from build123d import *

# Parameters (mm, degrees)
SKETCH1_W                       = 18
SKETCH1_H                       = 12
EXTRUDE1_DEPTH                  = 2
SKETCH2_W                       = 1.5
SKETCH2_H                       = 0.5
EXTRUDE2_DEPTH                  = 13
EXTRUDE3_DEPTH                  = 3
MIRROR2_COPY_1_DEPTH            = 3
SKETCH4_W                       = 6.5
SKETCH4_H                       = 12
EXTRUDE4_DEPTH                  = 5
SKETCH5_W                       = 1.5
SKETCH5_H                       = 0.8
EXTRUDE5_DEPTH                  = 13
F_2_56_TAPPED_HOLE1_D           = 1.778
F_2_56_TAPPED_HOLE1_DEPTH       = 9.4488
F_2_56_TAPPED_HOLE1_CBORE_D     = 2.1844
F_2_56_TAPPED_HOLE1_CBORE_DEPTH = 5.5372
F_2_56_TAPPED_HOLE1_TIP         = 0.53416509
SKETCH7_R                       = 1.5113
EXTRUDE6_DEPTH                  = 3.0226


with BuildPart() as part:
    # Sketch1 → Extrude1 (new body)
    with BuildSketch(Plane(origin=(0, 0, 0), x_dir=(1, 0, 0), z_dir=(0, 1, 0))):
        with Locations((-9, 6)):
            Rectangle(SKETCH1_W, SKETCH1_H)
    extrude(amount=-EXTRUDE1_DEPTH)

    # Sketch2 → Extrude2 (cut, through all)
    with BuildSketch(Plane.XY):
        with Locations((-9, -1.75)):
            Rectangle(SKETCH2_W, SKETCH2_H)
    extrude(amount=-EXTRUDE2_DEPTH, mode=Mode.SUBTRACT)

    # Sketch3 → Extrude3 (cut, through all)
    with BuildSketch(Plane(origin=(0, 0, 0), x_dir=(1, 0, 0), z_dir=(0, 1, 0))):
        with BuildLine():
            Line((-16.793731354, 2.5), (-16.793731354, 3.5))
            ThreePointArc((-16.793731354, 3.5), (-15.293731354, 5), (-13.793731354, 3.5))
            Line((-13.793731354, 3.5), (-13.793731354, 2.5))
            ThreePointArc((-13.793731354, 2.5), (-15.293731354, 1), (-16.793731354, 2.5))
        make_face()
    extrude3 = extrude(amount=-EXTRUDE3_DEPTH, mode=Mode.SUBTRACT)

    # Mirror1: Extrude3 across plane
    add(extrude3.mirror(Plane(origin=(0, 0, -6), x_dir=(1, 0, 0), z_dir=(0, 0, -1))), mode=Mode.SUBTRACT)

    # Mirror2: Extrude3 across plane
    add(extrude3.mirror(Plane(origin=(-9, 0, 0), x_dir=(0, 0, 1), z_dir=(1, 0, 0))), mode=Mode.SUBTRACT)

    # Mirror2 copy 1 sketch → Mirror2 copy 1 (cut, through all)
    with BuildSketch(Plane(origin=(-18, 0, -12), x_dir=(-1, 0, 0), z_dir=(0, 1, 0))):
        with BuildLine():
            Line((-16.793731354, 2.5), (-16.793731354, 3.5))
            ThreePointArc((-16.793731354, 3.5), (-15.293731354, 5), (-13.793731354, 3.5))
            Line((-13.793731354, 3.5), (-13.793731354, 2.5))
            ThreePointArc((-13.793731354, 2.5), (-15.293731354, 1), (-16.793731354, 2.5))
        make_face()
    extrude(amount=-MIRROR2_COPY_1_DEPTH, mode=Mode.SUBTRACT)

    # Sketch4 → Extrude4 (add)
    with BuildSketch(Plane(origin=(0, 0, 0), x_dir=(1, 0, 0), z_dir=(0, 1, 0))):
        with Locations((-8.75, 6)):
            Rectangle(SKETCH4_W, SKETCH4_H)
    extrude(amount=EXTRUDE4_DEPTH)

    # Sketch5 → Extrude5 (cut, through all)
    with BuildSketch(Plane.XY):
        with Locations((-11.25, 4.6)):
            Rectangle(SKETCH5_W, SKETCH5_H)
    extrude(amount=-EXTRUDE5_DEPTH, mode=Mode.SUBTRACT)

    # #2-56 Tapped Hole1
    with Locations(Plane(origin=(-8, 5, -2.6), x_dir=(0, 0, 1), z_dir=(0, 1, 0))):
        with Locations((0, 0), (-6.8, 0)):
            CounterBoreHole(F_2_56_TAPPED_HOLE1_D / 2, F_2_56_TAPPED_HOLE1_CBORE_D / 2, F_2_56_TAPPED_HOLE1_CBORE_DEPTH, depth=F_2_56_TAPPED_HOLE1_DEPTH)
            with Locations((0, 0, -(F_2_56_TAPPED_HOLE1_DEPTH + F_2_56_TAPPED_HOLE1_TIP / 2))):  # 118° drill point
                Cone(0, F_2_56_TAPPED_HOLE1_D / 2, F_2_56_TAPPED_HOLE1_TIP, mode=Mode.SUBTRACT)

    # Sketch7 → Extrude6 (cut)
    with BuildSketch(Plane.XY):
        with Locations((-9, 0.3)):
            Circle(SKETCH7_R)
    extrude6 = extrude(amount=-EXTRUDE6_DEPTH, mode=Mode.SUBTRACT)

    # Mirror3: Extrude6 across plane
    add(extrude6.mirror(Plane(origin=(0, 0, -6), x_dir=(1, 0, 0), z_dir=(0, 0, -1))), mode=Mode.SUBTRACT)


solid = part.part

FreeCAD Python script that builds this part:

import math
import FreeCAD as App
import Part
import Sketcher

V = App.Vector
Q = App.Units.Quantity

doc = App.newDocument("Part")
params = doc.addObject("Spreadsheet::Sheet", "Params")
for row, (alias, value) in enumerate([
    ("sketch1_width", "18 mm"),
    ("sketch1_height", "12 mm"),
    ("pad1_length", "2 mm"),
    ("sketch2_width", "1.5 mm"),
    ("sketch2_height", "0.5 mm"),
    ("sketch3_radius", "1.5 mm"),
    ("sketch3_height", "1 mm"),
    ("sketch4_radius", "1.5 mm"),
    ("sketch4_height", "1 mm"),
    ("sketch5_height", "12 mm"),
    ("sketch5_width", "6.5 mm"),
    ("pad2_length", "5 mm"),
    ("sketch6_width", "1.5 mm"),
    ("sketch6_height", "0.8 mm"),
    ("hole_diameter", "1.778 mm"),
    ("hole_depth", "9.4488 mm"),
    ("hole_cbore_diameter", "2.1844 mm"),
    ("hole_cbore_depth", "5.5372 mm"),
    ("pocket5_length", "3.0226 mm"),
], start=1):
    params.set(f"A{row}", alias)
    params.set(f"B{row}", "=" + value)
    params.setAlias(f"B{row}", alias)

body = doc.addObject("PartDesign::Body", "Body")

# Sketch on XZ plane
sketch1 = doc.addObject("Sketcher::SketchObject", "Sketch")
body.addObject(sketch1)
sketch1.AttachmentSupport = (doc.XZ_Plane, [""])
sketch1.MapMode = "FlatFace"
sketch1.addGeometry([
    Part.LineSegment(V(-18, -12, 0), V(-18, 0, 0)),
    Part.LineSegment(V(-18, 0, 0), V(0, 0, 0)),
    Part.LineSegment(V(0, 0, 0), V(0, -12, 0)),
    Part.LineSegment(V(0, -12, 0), V(-18, -12, 0)),
], False)
sketch1.addConstraint([
    Sketcher.Constraint("Coincident", 0, 2, 1, 1),
    Sketcher.Constraint("Coincident", 1, 2, 2, 1),
    Sketcher.Constraint("Coincident", 2, 2, 3, 1),
    Sketcher.Constraint("Coincident", 3, 2, 0, 1),
    Sketcher.Constraint("Vertical", 0),
    Sketcher.Constraint("Horizontal", 1),
    Sketcher.Constraint("Vertical", 2),
    Sketcher.Constraint("Horizontal", 3),
    Sketcher.Constraint("Coincident", 1, 2, -1, 1),
    Sketcher.Constraint("DistanceX", 1, 1, 1, 2, Q("18 mm")),
    Sketcher.Constraint("DistanceY", 0, 1, 0, 2, Q("12 mm")),
])
sketch1.setExpression("Constraints[9]", "Params.sketch1_width")
sketch1.setExpression("Constraints[10]", "Params.sketch1_height")
pad1 = doc.addObject("PartDesign::Pad", "Pad")
body.addObject(pad1)
pad1.Profile = sketch1
pad1.setExpression("Length", "Params.pad1_length")

# Sketch on XY plane
sketch2 = doc.addObject("Sketcher::SketchObject", "Sketch001")
body.addObject(sketch2)
sketch2.AttachmentSupport = (doc.XY_Plane, [""])
sketch2.MapMode = "FlatFace"
sketch2.addGeometry([
    Part.LineSegment(V(-9.8, -1.5, 0), V(-9.8, -2, 0)),
    Part.LineSegment(V(-9.8, -2, 0), V(-8.2, -2, 0)),
    Part.LineSegment(V(-8.2, -2, 0), V(-8.2, -1.5, 0)),
    Part.LineSegment(V(-8.2, -1.5, 0), V(-9.8, -1.5, 0)),
], False)
sketch2.addConstraint([
    Sketcher.Constraint("Coincident", 0, 2, 1, 1),
    Sketcher.Constraint("Coincident", 1, 2, 2, 1),
    Sketcher.Constraint("Coincident", 2, 2, 3, 1),
    Sketcher.Constraint("Coincident", 3, 2, 0, 1),
    Sketcher.Constraint("Vertical", 0),
    Sketcher.Constraint("Horizontal", 1),
    Sketcher.Constraint("Vertical", 2),
    Sketcher.Constraint("Horizontal", 3),
    Sketcher.Constraint("DistanceX", 1, 1, 1, 2, Q("1.5 mm")),
    Sketcher.Constraint("DistanceY", 0, 2, 0, 1, Q("0.5 mm")),
    Sketcher.Constraint("DistanceY", 0, 2, -1, 1, Q("2 mm")),
    Sketcher.Constraint("DistanceX", 0, 2, -1, 1, Q("9.75 mm")),
])
sketch2.setExpression("Constraints[8]", "Params.sketch2_width")
sketch2.setExpression("Constraints[9]", "Params.sketch2_height")
pocket1 = doc.addObject("PartDesign::Pocket", "Pocket")
body.addObject(pocket1)
pocket1.Profile = sketch2
pocket1.Type = "ThroughAll"

# Sketch on XZ plane
sketch3 = doc.addObject("Sketcher::SketchObject", "Sketch002")
body.addObject(sketch3)
sketch3.AttachmentSupport = (doc.XZ_Plane, [""])
sketch3.MapMode = "FlatFace"
sketch3.addGeometry([
    Part.LineSegment(V(-16.8, -3.5, 0), V(-16.8, -2.5, 0)),
    Part.ArcOfCircle(Part.Circle(V(-15.3, -2.5, 0), V(0, 0, 1), 1.5), math.radians(0), math.radians(180)),
    Part.LineSegment(V(-13.8, -2.5, 0), V(-13.8, -3.5, 0)),
    Part.ArcOfCircle(Part.Circle(V(-15.3, -3.5, 0), V(0, 0, 1), 1.5), math.radians(180), math.radians(360)),
], False)
sketch3.addConstraint([
    Sketcher.Constraint("Tangent", 0, 2, 1, 2),
    Sketcher.Constraint("Tangent", 1, 1, 2, 1),
    Sketcher.Constraint("Tangent", 2, 2, 3, 2),
    Sketcher.Constraint("Tangent", 3, 1, 0, 1),
    Sketcher.Constraint("Vertical", 0),
    Sketcher.Constraint("Vertical", 2),
    Sketcher.Constraint("Radius", 1, Q("1.5 mm")),
    Sketcher.Constraint("DistanceY", 0, 1, 0, 2, Q("1 mm")),
    Sketcher.Constraint("DistanceY", 1, 3, -1, 1, Q("2.5 mm")),
    Sketcher.Constraint("DistanceX", 1, 3, -1, 1, Q("15.293731 mm")),
])
sketch3.setExpression("Constraints[6]", "Params.sketch3_radius")
sketch3.setExpression("Constraints[7]", "Params.sketch3_height")
pocket2 = doc.addObject("PartDesign::Pocket", "Pocket001")
body.addObject(pocket2)
pocket2.Profile = sketch3
pocket2.Type = "ThroughAll"
pocket2.Reversed = True
doc.recompute()

datumplane = doc.addObject("PartDesign::Plane", "DatumPlane")
body.addObject(datumplane)
datumplane.AttachmentSupport = (doc.XY_Plane, [""])
datumplane.MapMode = "FlatFace"
datumplane.AttachmentOffset = App.Placement(V(0, 0, -6), App.Rotation())
mirrored = doc.addObject("PartDesign::Mirrored", "Mirrored")
body.addObject(mirrored)
mirrored.Originals = [pocket2]
mirrored.MirrorPlane = (datumplane, [""])
body.Tip = mirrored
doc.recompute()

datumplane2 = doc.addObject("PartDesign::Plane", "DatumPlane001")
body.addObject(datumplane2)
datumplane2.AttachmentSupport = (doc.YZ_Plane, [""])
datumplane2.MapMode = "FlatFace"
datumplane2.AttachmentOffset = App.Placement(V(0, 0, -9), App.Rotation())
mirrored2 = doc.addObject("PartDesign::Mirrored", "Mirrored001")
body.addObject(mirrored2)
mirrored2.Originals = [pocket2]
mirrored2.MirrorPlane = (datumplane2, [""])
body.Tip = mirrored2

# Sketch on XZ plane
sketch4 = doc.addObject("Sketcher::SketchObject", "Sketch003")
body.addObject(sketch4)
sketch4.AttachmentSupport = (doc.XZ_Plane, [""])
sketch4.MapMode = "FlatFace"
sketch4.addGeometry([
    Part.LineSegment(V(-1.2, -8.5, 0), V(-1.2, -9.5, 0)),
    Part.ArcOfCircle(Part.Circle(V(-2.7, -9.5, 0), V(0, 0, 1), 1.5), math.radians(180), math.radians(360)),
    Part.LineSegment(V(-4.2, -9.5, 0), V(-4.2, -8.5, 0)),
    Part.ArcOfCircle(Part.Circle(V(-2.7, -8.5, 0), V(0, 0, 1), 1.5), math.radians(0), math.radians(180)),
], False)
sketch4.addConstraint([
    Sketcher.Constraint("Tangent", 0, 2, 1, 2),
    Sketcher.Constraint("Tangent", 1, 1, 2, 1),
    Sketcher.Constraint("Tangent", 2, 2, 3, 2),
    Sketcher.Constraint("Tangent", 3, 1, 0, 1),
    Sketcher.Constraint("Vertical", 0),
    Sketcher.Constraint("Vertical", 2),
    Sketcher.Constraint("Radius", 1, Q("1.5 mm")),
    Sketcher.Constraint("DistanceY", 0, 2, 0, 1, Q("1 mm")),
    Sketcher.Constraint("DistanceY", 1, 3, -1, 1, Q("9.5 mm")),
    Sketcher.Constraint("DistanceX", 1, 3, -1, 1, Q("2.706269 mm")),
])
sketch4.setExpression("Constraints[6]", "Params.sketch4_radius")
sketch4.setExpression("Constraints[7]", "Params.sketch4_height")
pocket3 = doc.addObject("PartDesign::Pocket", "Pocket002")
body.addObject(pocket3)
pocket3.Profile = sketch4
pocket3.Type = "ThroughAll"
pocket3.Reversed = True

# Sketch on XZ plane
sketch5 = doc.addObject("Sketcher::SketchObject", "Sketch004")
body.addObject(sketch5)
sketch5.AttachmentSupport = (doc.XZ_Plane, [""])
sketch5.MapMode = "FlatFace"
sketch5.addGeometry([
    Part.LineSegment(V(-12, -12, 0), V(-12, 0, 0)),
    Part.LineSegment(V(-12, 0, 0), V(-6, 0, 0)),
    Part.LineSegment(V(-6, 0, 0), V(-6, -12, 0)),
    Part.LineSegment(V(-6, -12, 0), V(-12, -12, 0)),
], False)
sketch5.addConstraint([
    Sketcher.Constraint("Coincident", 0, 2, 1, 1),
    Sketcher.Constraint("Coincident", 1, 2, 2, 1),
    Sketcher.Constraint("Coincident", 2, 2, 3, 1),
    Sketcher.Constraint("Coincident", 3, 2, 0, 1),
    Sketcher.Constraint("Vertical", 0),
    Sketcher.Constraint("Horizontal", 1),
    Sketcher.Constraint("Vertical", 2),
    Sketcher.Constraint("Horizontal", 3),
    Sketcher.Constraint("PointOnObject", 0, 2, -1),
    Sketcher.Constraint("DistanceY", 0, 1, 0, 2, Q("12 mm")),
    Sketcher.Constraint("DistanceX", 1, 1, 1, 2, Q("6.5 mm")),
    Sketcher.Constraint("DistanceX", 0, 2, -1, 1, Q("12 mm")),
])
sketch5.setExpression("Constraints[9]", "Params.sketch5_height")
sketch5.setExpression("Constraints[10]", "Params.sketch5_width")
pad2 = doc.addObject("PartDesign::Pad", "Pad001")
body.addObject(pad2)
pad2.Profile = sketch5
pad2.setExpression("Length", "Params.pad2_length")
pad2.Reversed = True

# Sketch on XY plane
sketch6 = doc.addObject("Sketcher::SketchObject", "Sketch005")
body.addObject(sketch6)
sketch6.AttachmentSupport = (doc.XY_Plane, [""])
sketch6.MapMode = "FlatFace"
sketch6.addGeometry([
    Part.LineSegment(V(-12, 5, 0), V(-12, 4.2, 0)),
    Part.LineSegment(V(-12, 4.2, 0), V(-10.5, 4.2, 0)),
    Part.LineSegment(V(-10.5, 4.2, 0), V(-10.5, 5, 0)),
    Part.LineSegment(V(-10.5, 5, 0), V(-12, 5, 0)),
], False)
sketch6.addConstraint([
    Sketcher.Constraint("Coincident", 0, 2, 1, 1),
    Sketcher.Constraint("Coincident", 1, 2, 2, 1),
    Sketcher.Constraint("Coincident", 2, 2, 3, 1),
    Sketcher.Constraint("Coincident", 3, 2, 0, 1),
    Sketcher.Constraint("Vertical", 0),
    Sketcher.Constraint("Horizontal", 1),
    Sketcher.Constraint("Vertical", 2),
    Sketcher.Constraint("Horizontal", 3),
    Sketcher.Constraint("DistanceX", 1, 1, 1, 2, Q("1.5 mm")),
    Sketcher.Constraint("DistanceY", 0, 2, 0, 1, Q("0.8 mm")),
    Sketcher.Constraint("DistanceX", 0, 2, -1, 1, Q("12 mm")),
    Sketcher.Constraint("DistanceY", -1, 1, 2, 2, Q("5 mm")),
])
sketch6.setExpression("Constraints[8]", "Params.sketch6_width")
sketch6.setExpression("Constraints[9]", "Params.sketch6_height")
pocket4 = doc.addObject("PartDesign::Pocket", "Pocket003")
body.addObject(pocket4)
pocket4.Profile = sketch6
pocket4.Type = "ThroughAll"

# Sketch on XZ plane
sketch7 = doc.addObject("Sketcher::SketchObject", "Sketch006")
body.addObject(sketch7)
sketch7.AttachmentSupport = (doc.XZ_Plane, [""])
sketch7.MapMode = "FlatFace"
sketch7.AttachmentOffset = App.Placement(V(0, 0, -5), App.Rotation())
sketch7.addGeometry([
    Part.Circle(V(-8, -2.6, 0), V(0, 0, 1), 0.9),
    Part.Circle(V(-8, -9.4, 0), V(0, 0, 1), 0.9),
], False)
sketch7.addConstraint([
    Sketcher.Constraint("Equal", 0, 1),
    Sketcher.Constraint("Vertical", 0, 3, 1, 3),
    Sketcher.Constraint("Diameter", 0, Q("1.778 mm")),
    Sketcher.Constraint("DistanceX", 0, 3, -1, 1, Q("8 mm")),
    Sketcher.Constraint("DistanceY", 0, 3, -1, 1, Q("2.6 mm")),
    Sketcher.Constraint("DistanceY", 1, 3, -1, 1, Q("9.4 mm")),
])
doc.recompute()
hole = doc.addObject("PartDesign::Hole", "Hole")
body.addObject(hole)
hole.Profile = sketch7
hole.ThreadType = "None"
hole.setExpression("Diameter", "Params.hole_diameter")
hole.DepthType = "Dimension"
hole.setExpression("Depth", "Params.hole_depth")
hole.DrillPoint = "Angled"
hole.DrillPointAngle = 118
hole.HoleCutType = "Counterbore"
hole.setExpression("HoleCutDiameter", "Params.hole_cbore_diameter")
hole.setExpression("HoleCutDepth", "Params.hole_cbore_depth")
hole.Reversed = True

# Sketch on XY plane
sketch8 = doc.addObject("Sketcher::SketchObject", "Sketch007")
body.addObject(sketch8)
sketch8.AttachmentSupport = (doc.XY_Plane, [""])
sketch8.MapMode = "FlatFace"
sketch8.addGeometry(Part.Circle(V(-9, 0.3, 0), V(0, 0, 1), 1.5), False)
sketch8.addConstraint([
    Sketcher.Constraint("DistanceX", 0, 3, -1, 1, Q("9 mm")),
    Sketcher.Constraint("Diameter", 0, Q("3.0226 mm")),
    Sketcher.Constraint("DistanceY", -1, 1, 0, 3, Q("0.3 mm")),
])
pocket5 = doc.addObject("PartDesign::Pocket", "Pocket004")
body.addObject(pocket5)
pocket5.Profile = sketch8
pocket5.setExpression("Length", "Params.pocket5_length")
doc.recompute()

datumplane3 = doc.addObject("PartDesign::Plane", "DatumPlane002")
body.addObject(datumplane3)
datumplane3.AttachmentSupport = (doc.XY_Plane, [""])
datumplane3.MapMode = "FlatFace"
datumplane3.AttachmentOffset = App.Placement(V(0, 0, -6), App.Rotation())
mirrored3 = doc.addObject("PartDesign::Mirrored", "Mirrored002")
body.addObject(mirrored3)
mirrored3.Originals = [pocket5]
mirrored3.MirrorPlane = (datumplane3, [""])
body.Tip = mirrored3

doc.recompute()
